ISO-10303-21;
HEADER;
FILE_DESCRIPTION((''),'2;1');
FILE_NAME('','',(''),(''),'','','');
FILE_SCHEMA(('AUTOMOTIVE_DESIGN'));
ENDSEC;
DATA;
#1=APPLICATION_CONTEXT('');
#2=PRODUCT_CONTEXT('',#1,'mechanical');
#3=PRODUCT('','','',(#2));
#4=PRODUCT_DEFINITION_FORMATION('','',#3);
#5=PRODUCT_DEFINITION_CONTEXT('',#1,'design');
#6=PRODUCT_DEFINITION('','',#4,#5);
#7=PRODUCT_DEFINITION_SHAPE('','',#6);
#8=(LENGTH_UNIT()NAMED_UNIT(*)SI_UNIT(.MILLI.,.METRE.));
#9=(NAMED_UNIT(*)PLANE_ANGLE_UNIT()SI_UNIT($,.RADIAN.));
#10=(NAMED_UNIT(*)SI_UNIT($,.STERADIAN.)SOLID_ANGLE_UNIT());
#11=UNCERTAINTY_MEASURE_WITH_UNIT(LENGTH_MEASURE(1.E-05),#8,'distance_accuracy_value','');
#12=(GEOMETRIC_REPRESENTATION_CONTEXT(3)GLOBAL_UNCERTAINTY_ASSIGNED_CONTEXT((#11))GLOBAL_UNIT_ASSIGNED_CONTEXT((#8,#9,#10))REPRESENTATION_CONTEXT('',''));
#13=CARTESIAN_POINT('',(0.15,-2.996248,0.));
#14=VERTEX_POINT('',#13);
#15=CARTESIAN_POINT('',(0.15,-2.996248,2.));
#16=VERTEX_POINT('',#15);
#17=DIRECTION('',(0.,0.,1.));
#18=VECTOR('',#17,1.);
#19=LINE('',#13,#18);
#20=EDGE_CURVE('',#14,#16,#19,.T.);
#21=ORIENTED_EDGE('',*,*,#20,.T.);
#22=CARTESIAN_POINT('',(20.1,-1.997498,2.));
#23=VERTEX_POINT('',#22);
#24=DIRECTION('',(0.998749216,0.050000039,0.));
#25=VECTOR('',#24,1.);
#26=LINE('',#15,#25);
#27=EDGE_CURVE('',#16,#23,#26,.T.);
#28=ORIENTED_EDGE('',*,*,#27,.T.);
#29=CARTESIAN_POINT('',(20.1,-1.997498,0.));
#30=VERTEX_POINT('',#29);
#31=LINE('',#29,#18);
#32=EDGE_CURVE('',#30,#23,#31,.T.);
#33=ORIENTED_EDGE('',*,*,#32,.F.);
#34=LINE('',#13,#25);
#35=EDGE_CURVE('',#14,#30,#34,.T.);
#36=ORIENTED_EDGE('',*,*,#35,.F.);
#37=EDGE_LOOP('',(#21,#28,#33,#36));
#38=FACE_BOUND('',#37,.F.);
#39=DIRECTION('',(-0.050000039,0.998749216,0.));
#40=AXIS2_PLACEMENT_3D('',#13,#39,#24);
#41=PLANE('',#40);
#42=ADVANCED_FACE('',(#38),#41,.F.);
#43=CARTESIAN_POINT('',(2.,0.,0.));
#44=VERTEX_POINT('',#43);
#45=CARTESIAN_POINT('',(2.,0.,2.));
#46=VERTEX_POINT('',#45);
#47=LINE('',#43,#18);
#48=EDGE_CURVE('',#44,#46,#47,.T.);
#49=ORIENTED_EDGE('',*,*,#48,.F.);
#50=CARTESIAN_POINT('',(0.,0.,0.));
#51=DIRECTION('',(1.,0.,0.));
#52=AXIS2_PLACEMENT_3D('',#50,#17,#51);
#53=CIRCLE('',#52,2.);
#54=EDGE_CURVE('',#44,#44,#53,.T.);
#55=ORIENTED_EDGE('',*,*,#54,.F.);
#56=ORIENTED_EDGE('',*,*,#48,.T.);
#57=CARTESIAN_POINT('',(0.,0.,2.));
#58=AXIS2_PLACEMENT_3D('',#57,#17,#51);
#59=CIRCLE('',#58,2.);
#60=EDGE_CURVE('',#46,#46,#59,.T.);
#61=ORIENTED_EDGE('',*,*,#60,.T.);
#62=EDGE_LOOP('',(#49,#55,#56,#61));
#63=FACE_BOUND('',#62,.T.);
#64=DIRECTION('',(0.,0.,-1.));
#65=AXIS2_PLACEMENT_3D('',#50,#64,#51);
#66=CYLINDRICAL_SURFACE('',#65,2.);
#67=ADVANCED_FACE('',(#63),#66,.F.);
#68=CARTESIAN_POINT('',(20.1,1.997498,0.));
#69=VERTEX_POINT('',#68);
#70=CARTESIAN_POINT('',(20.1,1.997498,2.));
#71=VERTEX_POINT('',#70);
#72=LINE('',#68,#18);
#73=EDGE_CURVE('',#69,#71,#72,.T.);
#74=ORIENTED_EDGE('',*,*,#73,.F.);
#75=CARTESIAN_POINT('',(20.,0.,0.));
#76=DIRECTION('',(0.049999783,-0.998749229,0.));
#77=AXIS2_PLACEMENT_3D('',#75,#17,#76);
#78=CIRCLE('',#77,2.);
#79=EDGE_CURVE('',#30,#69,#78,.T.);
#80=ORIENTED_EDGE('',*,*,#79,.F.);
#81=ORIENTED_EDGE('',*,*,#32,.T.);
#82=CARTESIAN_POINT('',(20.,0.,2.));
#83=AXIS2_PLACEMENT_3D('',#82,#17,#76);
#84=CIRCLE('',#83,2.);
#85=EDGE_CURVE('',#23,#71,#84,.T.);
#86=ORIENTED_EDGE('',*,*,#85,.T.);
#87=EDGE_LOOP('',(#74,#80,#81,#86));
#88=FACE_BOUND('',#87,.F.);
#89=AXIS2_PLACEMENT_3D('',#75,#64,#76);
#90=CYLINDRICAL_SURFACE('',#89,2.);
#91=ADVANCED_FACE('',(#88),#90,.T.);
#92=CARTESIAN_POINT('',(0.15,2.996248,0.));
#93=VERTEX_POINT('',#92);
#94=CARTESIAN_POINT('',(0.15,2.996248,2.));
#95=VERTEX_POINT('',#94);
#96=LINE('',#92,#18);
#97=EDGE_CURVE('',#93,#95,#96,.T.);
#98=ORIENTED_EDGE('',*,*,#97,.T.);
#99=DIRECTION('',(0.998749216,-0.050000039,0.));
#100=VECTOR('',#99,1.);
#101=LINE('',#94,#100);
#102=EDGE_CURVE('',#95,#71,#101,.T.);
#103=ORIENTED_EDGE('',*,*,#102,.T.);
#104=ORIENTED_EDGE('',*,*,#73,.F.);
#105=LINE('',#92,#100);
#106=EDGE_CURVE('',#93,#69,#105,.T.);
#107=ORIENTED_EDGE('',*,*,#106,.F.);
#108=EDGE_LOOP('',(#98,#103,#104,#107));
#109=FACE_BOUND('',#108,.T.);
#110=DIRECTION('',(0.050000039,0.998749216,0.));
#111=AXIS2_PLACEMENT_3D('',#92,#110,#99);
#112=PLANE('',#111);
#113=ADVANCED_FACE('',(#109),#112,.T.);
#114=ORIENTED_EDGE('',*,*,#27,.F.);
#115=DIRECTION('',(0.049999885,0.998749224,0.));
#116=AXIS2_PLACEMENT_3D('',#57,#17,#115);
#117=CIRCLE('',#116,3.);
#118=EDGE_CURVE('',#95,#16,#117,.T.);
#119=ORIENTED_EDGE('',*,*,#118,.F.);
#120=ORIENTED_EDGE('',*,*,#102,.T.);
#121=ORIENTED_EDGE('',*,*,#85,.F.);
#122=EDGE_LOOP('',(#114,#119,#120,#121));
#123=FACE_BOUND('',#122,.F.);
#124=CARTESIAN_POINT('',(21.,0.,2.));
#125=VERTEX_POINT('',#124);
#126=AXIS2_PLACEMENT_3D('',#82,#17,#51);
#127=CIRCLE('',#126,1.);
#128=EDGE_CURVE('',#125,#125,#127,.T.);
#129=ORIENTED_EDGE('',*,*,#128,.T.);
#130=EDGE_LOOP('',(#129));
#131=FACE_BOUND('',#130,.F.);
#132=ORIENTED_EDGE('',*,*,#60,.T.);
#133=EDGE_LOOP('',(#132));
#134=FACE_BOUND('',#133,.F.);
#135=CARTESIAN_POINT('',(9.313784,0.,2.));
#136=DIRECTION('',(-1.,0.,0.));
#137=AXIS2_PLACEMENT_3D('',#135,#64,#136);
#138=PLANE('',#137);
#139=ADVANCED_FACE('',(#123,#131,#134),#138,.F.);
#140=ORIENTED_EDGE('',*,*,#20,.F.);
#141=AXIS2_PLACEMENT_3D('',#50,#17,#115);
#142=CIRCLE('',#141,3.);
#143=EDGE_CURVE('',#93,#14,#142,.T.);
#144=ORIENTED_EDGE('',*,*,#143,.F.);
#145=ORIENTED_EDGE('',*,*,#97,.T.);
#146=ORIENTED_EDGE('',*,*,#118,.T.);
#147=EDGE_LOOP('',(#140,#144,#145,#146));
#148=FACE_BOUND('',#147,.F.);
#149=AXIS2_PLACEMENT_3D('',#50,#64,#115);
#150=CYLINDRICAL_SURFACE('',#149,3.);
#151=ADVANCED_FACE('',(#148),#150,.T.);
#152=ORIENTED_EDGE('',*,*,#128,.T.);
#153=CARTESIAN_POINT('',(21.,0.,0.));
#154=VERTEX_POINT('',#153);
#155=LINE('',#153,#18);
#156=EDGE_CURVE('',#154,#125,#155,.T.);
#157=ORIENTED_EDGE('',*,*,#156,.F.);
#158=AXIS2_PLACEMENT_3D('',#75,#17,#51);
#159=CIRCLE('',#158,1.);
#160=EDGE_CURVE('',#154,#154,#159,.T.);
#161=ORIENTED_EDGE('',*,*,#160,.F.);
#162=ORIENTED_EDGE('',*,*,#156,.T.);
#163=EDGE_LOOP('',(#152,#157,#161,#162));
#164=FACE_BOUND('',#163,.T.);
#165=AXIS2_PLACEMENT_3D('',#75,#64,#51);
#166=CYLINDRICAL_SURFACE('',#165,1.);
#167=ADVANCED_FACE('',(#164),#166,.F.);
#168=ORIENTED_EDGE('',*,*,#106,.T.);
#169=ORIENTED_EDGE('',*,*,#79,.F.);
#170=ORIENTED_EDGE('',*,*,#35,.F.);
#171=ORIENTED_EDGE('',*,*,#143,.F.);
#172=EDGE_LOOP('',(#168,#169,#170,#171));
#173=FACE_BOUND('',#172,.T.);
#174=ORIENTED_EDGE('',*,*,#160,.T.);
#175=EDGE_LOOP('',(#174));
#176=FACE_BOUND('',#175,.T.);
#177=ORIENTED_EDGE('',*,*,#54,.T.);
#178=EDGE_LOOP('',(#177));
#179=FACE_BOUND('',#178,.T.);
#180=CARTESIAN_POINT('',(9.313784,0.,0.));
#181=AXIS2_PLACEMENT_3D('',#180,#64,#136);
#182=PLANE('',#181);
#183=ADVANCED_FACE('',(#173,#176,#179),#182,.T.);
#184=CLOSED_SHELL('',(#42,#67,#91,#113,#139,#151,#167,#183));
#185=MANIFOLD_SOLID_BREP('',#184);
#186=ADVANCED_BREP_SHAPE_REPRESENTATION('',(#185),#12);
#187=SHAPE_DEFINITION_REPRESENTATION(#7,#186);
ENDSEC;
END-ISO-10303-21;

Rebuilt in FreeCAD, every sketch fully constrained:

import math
import FreeCAD as App
import Part
import Sketcher

V = App.Vector

doc = App.newDocument("Part")
body = doc.addObject("PartDesign::Body", "Body")

sketch1 = doc.addObject("Sketcher::SketchObject", "Sketch")
body.addObject(sketch1)
sketch1.AttachmentSupport = (doc.XY_Plane, [""])
sketch1.MapMode = "FlatFace"
sketch1.addGeometry([
    Part.LineSegment(V(20.1, 2, 0), V(0.1, 3, 0)),
    Part.ArcOfCircle(Part.Circle(V(0, 0, 0), V(0, 0, 1), 3), math.radians(87), math.radians(273)),
    Part.LineSegment(V(0.1, -3, 0), V(20.1, -2, 0)),
    Part.ArcOfCircle(Part.Circle(V(20, 0, 0), V(0, 0, 1), 2), math.radians(-87), math.radians(87)),
    Part.Circle(V(20, 0, 0), V(0, 0, 1), 1),
    Part.Circle(V(0, 0, 0), V(0, 0, 1), 2),
], False)
sketch1.addConstraint([
    Sketcher.Constraint("Tangent", 0, 2, 1, 1),
    Sketcher.Constraint("Tangent", 1, 2, 2, 1),
    Sketcher.Constraint("Tangent", 2, 2, 3, 1),
    Sketcher.Constraint("Tangent", 3, 2, 0, 1),
    Sketcher.Constraint("Coincident", 1, 3, -1, 1),
    Sketcher.Constraint("Coincident", 5, 3, -1, 1),
    Sketcher.Constraint("Coincident", 4, 3, 3, 3),
    Sketcher.Constraint("Equal", 3, 5),
    Sketcher.Constraint("PointOnObject", 3, 3, -1),
    Sketcher.Constraint("Diameter", 4, 2.0),
    Sketcher.Constraint("Diameter", 5, 4.0),
    Sketcher.Constraint("Radius", 1, 3.0),
    Sketcher.Constraint("DistanceX", -1, 1, 3, 3, 20.0),
])
pad1 = doc.addObject("PartDesign::Pad", "Pad")
body.addObject(pad1)
pad1.Profile = sketch1
pad1.Length = 2

doc.recompute()
